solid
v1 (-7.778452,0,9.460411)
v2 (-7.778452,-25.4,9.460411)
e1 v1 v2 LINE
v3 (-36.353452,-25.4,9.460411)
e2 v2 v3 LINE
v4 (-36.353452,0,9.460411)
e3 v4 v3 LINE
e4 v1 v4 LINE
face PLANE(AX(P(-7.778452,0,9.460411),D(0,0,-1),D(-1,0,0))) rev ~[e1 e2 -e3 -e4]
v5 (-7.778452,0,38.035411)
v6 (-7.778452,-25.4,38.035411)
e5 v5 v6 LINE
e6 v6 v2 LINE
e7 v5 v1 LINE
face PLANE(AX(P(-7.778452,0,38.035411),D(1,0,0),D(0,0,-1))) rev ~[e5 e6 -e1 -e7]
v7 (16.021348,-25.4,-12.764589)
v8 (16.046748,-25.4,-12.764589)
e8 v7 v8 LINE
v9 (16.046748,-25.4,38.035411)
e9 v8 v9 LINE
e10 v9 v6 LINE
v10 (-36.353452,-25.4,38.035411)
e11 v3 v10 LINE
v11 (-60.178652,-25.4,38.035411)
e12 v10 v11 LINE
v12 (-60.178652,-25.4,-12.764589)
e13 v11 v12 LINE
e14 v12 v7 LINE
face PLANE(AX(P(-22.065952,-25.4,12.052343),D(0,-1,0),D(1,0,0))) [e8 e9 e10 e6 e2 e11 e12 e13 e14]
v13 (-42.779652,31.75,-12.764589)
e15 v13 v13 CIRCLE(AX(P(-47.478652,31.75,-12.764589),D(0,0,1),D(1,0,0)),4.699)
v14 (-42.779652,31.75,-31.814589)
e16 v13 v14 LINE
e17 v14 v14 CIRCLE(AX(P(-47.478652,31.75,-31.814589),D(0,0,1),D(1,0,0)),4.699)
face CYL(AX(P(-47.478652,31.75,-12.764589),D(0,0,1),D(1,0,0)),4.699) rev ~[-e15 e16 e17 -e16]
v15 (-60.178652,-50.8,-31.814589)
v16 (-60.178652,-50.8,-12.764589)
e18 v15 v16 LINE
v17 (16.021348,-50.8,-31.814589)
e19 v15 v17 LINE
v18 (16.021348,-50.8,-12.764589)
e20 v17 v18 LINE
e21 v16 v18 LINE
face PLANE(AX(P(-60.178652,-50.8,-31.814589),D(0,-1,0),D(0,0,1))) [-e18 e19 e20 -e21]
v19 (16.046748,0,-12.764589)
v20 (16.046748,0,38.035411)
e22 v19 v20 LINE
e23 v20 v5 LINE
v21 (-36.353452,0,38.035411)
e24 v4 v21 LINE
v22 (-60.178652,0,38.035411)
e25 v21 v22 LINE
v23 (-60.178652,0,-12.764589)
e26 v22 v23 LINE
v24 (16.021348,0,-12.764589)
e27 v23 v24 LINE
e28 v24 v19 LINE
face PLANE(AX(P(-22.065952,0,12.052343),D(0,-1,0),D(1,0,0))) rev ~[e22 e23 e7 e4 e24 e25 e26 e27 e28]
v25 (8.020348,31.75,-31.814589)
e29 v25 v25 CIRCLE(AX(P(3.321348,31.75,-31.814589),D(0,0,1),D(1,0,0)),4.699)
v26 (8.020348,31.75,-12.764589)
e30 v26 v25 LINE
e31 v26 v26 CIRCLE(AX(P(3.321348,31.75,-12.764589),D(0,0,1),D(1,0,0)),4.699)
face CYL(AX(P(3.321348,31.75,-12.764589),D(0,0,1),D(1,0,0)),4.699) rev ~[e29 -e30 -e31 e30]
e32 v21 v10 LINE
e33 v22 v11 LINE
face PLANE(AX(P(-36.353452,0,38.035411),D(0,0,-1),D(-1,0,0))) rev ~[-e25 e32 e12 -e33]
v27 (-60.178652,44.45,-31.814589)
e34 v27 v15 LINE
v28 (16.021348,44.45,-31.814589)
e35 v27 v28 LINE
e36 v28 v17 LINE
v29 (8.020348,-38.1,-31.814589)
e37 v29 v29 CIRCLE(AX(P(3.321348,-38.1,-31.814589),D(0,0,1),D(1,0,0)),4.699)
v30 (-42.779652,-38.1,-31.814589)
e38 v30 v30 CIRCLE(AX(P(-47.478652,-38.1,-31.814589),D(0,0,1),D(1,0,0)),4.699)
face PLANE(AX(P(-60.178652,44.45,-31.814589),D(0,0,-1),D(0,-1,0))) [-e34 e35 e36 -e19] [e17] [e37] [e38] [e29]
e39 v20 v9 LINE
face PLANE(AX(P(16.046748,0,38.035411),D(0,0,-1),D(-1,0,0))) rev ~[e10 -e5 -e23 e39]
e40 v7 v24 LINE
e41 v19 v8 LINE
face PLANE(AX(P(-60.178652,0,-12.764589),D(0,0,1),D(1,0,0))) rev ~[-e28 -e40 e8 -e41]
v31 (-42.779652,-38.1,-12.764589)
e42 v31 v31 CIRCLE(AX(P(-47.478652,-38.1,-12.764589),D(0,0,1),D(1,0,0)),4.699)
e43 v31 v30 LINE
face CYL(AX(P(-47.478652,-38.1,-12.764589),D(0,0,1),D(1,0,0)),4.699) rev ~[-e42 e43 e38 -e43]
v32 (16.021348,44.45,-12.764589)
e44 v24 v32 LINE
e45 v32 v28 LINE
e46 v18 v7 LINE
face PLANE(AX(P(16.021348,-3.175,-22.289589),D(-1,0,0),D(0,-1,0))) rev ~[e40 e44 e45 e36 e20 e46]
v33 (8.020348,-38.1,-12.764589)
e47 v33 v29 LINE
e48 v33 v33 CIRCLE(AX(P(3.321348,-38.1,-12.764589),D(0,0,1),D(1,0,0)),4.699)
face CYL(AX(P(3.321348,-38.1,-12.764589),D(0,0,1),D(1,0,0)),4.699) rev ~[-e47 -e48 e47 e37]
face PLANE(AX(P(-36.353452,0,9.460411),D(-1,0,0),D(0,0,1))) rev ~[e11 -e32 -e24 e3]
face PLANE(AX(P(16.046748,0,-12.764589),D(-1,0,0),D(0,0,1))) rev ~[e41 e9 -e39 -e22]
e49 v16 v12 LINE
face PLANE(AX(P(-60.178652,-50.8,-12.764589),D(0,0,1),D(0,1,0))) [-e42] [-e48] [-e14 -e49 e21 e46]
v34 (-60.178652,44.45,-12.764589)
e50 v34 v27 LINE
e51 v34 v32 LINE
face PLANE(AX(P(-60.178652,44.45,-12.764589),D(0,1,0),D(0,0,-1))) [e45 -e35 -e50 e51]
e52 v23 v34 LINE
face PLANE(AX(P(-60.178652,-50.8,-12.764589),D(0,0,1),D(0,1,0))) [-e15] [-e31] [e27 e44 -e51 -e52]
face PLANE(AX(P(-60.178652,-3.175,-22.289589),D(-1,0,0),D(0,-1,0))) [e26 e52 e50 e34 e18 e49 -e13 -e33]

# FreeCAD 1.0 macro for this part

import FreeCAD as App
import Part
import Sketcher

V = App.Vector
Q = App.Units.Quantity

doc = App.newDocument("Part")
body = doc.addObject("PartDesign::Body", "Body")

# Sketch on XZ plane
sketch1 = body.newObject("Sketcher::SketchObject", "Sketch")
sketch1.AttachmentSupport = (doc.getObject("XZ_Plane"), [""])
sketch1.MapMode = "FlatFace"
sketch1.addGeometry([
    Part.LineSegment(V(-36.353452, 38.035411, 0), V(-60.178652, 38.035411, 0)),  # 0
    Part.LineSegment(V(-60.178652, 38.035411, 0), V(-60.178652, -12.764589, 0)),  # 1
    Part.LineSegment(V(-60.178652, -12.764589, 0), V(16.046748, -12.764589, 0)),  # 2
    Part.LineSegment(V(16.046748, -12.764589, 0), V(16.046748, 38.035411, 0)),  # 3
    Part.LineSegment(V(16.046748, 38.035411, 0), V(-7.778452, 38.035411, 0)),  # 4
    Part.LineSegment(V(-7.778452, 38.035411, 0), V(-7.778452, 9.460411, 0)),  # 5
    Part.LineSegment(V(-7.778452, 9.460411, 0), V(-36.353452, 9.460411, 0)),  # 6
    Part.LineSegment(V(-36.353452, 9.460411, 0), V(-36.353452, 38.035411, 0)),  # 7
], False)
sketch1.addConstraint([
    Sketcher.Constraint("Coincident", 0, 2, 1, 1),
    Sketcher.Constraint("Coincident", 1, 2, 2, 1),
    Sketcher.Constraint("Coincident", 2, 2, 3, 1),
    Sketcher.Constraint("Coincident", 3, 2, 4, 1),
    Sketcher.Constraint("Coincident", 4, 2, 5, 1),
    Sketcher.Constraint("Coincident", 5, 2, 6, 1),
    Sketcher.Constraint("Coincident", 6, 2, 7, 1),
    Sketcher.Constraint("Coincident", 7, 2, 0, 1),
    Sketcher.Constraint("Horizontal", 0),
    Sketcher.Constraint("Vertical", 1),
    Sketcher.Constraint("Horizontal", 2),
    Sketcher.Constraint("Vertical", 3),
    Sketcher.Constraint("Horizontal", 4),
    Sketcher.Constraint("Vertical", 5),
    Sketcher.Constraint("Horizontal", 6),
    Sketcher.Constraint("Vertical", 7),
    Sketcher.Constraint("Horizontal", 0, 2, 3, 2),
    Sketcher.Constraint("Equal", 0, 4),
    Sketcher.Constraint("Equal", 6, 5),
    Sketcher.Constraint("DistanceY", 1, 2, 1, 1, Q("2 in")),
    Sketcher.Constraint("DistanceX", 0, 2, 0, 1, Q("0.938 in")),
    Sketcher.Constraint("DistanceX", 2, 1, 2, 2, Q("3.001 in")),
    Sketcher.Constraint("DistanceY", -1, 1, 0, 2, Q("38.035411 mm")),
    Sketcher.Constraint("DistanceX", -1, 1, 2, 2, Q("16.046748 mm")),
])
pad1 = body.newObject("PartDesign::Pad", "Pad")
pad1.Profile = sketch1
pad1.Length = Q("1 in")

# Sketch on YZ plane
sketch2 = body.newObject("Sketcher::SketchObject", "Sketch001")
sketch2.AttachmentSupport = (doc.getObject("YZ_Plane"), [""])
sketch2.MapMode = "FlatFace"
sketch2.AttachmentOffset = App.Placement(V(0, 0, -60.178652), App.Rotation())
sketch2.addGeometry([
    Part.LineSegment(V(-50.8, -12.764589, 0), V(44.45, -12.764589, 0)),
    Part.LineSegment(V(44.45, -12.764589, 0), V(44.45, -31.814589, 0)),
    Part.LineSegment(V(44.45, -31.814589, 0), V(-50.8, -31.814589, 0)),
    Part.LineSegment(V(-50.8, -31.814589, 0), V(-50.8, -12.764589, 0)),
], False)
sketch2.addConstraint([
    Sketcher.Constraint("Coincident", 0, 2, 1, 1),
    Sketcher.Constraint("Coincident", 1, 2, 2, 1),
    Sketcher.Constraint("Coincident", 2, 2, 3, 1),
    Sketcher.Constraint("Coincident", 3, 2, 0, 1),
    Sketcher.Constraint("Horizontal", 0),
    Sketcher.Constraint("Vertical", 1),
    Sketcher.Constraint("Horizontal", 2),
    Sketcher.Constraint("Vertical", 3),
    Sketcher.Constraint("DistanceX", 2, 2, -1, 1, Q("2 in")),
    Sketcher.Constraint("DistanceX", 0, 1, 0, 2, Q("3.75 in")),
    Sketcher.Constraint("DistanceY", 1, 2, 1, 1, Q("0.75 in")),
    Sketcher.Constraint("DistanceY", 0, 2, -1, 1, Q("12.764589 mm")),
])
pad2 = body.newObject("PartDesign::Pad", "Pad001")
pad2.Profile = sketch2
pad2.Length = Q("3 in")

# Sketch on XY plane
sketch3 = body.newObject("Sketcher::SketchObject", "Sketch002")
sketch3.AttachmentSupport = (doc.getObject("XY_Plane"), [""])
sketch3.MapMode = "FlatFace"
sketch3.AttachmentOffset = App.Placement(V(0, 0, -12.764589), App.Rotation())
sketch3.addGeometry([
    Part.Circle(V(3.321348, 31.75, 0), V(0, 0, 1), 4.699),
    Part.Circle(V(-47.478652, 31.75, 0), V(0, 0, 1), 4.699),
    Part.Circle(V(-47.478652, -38.1, 0), V(0, 0, 1), 4.699),
    Part.Circle(V(3.321348, -38.1, 0), V(0, 0, 1), 4.699),
], False)
sketch3.addConstraint([
    Sketcher.Constraint("Equal", 0, 1),
    Sketcher.Constraint("Equal", 1, 2),
    Sketcher.Constraint("Equal", 2, 3),
    Sketcher.Constraint("Horizontal", 0, 3, 1, 3),
    Sketcher.Constraint("Horizontal", 2, 3, 3, 3),
    Sketcher.Constraint("Vertical", 1, 3, 2, 3),
    Sketcher.Constraint("Vertical", 0, 3, 3, 3),
    Sketcher.Constraint("Diameter", 0, Q("0.37 in")),
    Sketcher.Constraint("DistanceX", 1, 3, 0, 3, Q("2 in")),
    Sketcher.Constraint("DistanceY", 2, 3, -1, 1, Q("1.5 in")),
    Sketcher.Constraint("DistanceY", -1, 1, 0, 3, Q("1.25 in")),
    Sketcher.Constraint("DistanceX", -1, 1, 0, 3, Q("3.321348 mm")),
])
pocket1 = body.newObject("PartDesign::Pocket", "Pocket")
pocket1.Profile = sketch3
pocket1.Length = Q("1 in")

doc.recompute()
